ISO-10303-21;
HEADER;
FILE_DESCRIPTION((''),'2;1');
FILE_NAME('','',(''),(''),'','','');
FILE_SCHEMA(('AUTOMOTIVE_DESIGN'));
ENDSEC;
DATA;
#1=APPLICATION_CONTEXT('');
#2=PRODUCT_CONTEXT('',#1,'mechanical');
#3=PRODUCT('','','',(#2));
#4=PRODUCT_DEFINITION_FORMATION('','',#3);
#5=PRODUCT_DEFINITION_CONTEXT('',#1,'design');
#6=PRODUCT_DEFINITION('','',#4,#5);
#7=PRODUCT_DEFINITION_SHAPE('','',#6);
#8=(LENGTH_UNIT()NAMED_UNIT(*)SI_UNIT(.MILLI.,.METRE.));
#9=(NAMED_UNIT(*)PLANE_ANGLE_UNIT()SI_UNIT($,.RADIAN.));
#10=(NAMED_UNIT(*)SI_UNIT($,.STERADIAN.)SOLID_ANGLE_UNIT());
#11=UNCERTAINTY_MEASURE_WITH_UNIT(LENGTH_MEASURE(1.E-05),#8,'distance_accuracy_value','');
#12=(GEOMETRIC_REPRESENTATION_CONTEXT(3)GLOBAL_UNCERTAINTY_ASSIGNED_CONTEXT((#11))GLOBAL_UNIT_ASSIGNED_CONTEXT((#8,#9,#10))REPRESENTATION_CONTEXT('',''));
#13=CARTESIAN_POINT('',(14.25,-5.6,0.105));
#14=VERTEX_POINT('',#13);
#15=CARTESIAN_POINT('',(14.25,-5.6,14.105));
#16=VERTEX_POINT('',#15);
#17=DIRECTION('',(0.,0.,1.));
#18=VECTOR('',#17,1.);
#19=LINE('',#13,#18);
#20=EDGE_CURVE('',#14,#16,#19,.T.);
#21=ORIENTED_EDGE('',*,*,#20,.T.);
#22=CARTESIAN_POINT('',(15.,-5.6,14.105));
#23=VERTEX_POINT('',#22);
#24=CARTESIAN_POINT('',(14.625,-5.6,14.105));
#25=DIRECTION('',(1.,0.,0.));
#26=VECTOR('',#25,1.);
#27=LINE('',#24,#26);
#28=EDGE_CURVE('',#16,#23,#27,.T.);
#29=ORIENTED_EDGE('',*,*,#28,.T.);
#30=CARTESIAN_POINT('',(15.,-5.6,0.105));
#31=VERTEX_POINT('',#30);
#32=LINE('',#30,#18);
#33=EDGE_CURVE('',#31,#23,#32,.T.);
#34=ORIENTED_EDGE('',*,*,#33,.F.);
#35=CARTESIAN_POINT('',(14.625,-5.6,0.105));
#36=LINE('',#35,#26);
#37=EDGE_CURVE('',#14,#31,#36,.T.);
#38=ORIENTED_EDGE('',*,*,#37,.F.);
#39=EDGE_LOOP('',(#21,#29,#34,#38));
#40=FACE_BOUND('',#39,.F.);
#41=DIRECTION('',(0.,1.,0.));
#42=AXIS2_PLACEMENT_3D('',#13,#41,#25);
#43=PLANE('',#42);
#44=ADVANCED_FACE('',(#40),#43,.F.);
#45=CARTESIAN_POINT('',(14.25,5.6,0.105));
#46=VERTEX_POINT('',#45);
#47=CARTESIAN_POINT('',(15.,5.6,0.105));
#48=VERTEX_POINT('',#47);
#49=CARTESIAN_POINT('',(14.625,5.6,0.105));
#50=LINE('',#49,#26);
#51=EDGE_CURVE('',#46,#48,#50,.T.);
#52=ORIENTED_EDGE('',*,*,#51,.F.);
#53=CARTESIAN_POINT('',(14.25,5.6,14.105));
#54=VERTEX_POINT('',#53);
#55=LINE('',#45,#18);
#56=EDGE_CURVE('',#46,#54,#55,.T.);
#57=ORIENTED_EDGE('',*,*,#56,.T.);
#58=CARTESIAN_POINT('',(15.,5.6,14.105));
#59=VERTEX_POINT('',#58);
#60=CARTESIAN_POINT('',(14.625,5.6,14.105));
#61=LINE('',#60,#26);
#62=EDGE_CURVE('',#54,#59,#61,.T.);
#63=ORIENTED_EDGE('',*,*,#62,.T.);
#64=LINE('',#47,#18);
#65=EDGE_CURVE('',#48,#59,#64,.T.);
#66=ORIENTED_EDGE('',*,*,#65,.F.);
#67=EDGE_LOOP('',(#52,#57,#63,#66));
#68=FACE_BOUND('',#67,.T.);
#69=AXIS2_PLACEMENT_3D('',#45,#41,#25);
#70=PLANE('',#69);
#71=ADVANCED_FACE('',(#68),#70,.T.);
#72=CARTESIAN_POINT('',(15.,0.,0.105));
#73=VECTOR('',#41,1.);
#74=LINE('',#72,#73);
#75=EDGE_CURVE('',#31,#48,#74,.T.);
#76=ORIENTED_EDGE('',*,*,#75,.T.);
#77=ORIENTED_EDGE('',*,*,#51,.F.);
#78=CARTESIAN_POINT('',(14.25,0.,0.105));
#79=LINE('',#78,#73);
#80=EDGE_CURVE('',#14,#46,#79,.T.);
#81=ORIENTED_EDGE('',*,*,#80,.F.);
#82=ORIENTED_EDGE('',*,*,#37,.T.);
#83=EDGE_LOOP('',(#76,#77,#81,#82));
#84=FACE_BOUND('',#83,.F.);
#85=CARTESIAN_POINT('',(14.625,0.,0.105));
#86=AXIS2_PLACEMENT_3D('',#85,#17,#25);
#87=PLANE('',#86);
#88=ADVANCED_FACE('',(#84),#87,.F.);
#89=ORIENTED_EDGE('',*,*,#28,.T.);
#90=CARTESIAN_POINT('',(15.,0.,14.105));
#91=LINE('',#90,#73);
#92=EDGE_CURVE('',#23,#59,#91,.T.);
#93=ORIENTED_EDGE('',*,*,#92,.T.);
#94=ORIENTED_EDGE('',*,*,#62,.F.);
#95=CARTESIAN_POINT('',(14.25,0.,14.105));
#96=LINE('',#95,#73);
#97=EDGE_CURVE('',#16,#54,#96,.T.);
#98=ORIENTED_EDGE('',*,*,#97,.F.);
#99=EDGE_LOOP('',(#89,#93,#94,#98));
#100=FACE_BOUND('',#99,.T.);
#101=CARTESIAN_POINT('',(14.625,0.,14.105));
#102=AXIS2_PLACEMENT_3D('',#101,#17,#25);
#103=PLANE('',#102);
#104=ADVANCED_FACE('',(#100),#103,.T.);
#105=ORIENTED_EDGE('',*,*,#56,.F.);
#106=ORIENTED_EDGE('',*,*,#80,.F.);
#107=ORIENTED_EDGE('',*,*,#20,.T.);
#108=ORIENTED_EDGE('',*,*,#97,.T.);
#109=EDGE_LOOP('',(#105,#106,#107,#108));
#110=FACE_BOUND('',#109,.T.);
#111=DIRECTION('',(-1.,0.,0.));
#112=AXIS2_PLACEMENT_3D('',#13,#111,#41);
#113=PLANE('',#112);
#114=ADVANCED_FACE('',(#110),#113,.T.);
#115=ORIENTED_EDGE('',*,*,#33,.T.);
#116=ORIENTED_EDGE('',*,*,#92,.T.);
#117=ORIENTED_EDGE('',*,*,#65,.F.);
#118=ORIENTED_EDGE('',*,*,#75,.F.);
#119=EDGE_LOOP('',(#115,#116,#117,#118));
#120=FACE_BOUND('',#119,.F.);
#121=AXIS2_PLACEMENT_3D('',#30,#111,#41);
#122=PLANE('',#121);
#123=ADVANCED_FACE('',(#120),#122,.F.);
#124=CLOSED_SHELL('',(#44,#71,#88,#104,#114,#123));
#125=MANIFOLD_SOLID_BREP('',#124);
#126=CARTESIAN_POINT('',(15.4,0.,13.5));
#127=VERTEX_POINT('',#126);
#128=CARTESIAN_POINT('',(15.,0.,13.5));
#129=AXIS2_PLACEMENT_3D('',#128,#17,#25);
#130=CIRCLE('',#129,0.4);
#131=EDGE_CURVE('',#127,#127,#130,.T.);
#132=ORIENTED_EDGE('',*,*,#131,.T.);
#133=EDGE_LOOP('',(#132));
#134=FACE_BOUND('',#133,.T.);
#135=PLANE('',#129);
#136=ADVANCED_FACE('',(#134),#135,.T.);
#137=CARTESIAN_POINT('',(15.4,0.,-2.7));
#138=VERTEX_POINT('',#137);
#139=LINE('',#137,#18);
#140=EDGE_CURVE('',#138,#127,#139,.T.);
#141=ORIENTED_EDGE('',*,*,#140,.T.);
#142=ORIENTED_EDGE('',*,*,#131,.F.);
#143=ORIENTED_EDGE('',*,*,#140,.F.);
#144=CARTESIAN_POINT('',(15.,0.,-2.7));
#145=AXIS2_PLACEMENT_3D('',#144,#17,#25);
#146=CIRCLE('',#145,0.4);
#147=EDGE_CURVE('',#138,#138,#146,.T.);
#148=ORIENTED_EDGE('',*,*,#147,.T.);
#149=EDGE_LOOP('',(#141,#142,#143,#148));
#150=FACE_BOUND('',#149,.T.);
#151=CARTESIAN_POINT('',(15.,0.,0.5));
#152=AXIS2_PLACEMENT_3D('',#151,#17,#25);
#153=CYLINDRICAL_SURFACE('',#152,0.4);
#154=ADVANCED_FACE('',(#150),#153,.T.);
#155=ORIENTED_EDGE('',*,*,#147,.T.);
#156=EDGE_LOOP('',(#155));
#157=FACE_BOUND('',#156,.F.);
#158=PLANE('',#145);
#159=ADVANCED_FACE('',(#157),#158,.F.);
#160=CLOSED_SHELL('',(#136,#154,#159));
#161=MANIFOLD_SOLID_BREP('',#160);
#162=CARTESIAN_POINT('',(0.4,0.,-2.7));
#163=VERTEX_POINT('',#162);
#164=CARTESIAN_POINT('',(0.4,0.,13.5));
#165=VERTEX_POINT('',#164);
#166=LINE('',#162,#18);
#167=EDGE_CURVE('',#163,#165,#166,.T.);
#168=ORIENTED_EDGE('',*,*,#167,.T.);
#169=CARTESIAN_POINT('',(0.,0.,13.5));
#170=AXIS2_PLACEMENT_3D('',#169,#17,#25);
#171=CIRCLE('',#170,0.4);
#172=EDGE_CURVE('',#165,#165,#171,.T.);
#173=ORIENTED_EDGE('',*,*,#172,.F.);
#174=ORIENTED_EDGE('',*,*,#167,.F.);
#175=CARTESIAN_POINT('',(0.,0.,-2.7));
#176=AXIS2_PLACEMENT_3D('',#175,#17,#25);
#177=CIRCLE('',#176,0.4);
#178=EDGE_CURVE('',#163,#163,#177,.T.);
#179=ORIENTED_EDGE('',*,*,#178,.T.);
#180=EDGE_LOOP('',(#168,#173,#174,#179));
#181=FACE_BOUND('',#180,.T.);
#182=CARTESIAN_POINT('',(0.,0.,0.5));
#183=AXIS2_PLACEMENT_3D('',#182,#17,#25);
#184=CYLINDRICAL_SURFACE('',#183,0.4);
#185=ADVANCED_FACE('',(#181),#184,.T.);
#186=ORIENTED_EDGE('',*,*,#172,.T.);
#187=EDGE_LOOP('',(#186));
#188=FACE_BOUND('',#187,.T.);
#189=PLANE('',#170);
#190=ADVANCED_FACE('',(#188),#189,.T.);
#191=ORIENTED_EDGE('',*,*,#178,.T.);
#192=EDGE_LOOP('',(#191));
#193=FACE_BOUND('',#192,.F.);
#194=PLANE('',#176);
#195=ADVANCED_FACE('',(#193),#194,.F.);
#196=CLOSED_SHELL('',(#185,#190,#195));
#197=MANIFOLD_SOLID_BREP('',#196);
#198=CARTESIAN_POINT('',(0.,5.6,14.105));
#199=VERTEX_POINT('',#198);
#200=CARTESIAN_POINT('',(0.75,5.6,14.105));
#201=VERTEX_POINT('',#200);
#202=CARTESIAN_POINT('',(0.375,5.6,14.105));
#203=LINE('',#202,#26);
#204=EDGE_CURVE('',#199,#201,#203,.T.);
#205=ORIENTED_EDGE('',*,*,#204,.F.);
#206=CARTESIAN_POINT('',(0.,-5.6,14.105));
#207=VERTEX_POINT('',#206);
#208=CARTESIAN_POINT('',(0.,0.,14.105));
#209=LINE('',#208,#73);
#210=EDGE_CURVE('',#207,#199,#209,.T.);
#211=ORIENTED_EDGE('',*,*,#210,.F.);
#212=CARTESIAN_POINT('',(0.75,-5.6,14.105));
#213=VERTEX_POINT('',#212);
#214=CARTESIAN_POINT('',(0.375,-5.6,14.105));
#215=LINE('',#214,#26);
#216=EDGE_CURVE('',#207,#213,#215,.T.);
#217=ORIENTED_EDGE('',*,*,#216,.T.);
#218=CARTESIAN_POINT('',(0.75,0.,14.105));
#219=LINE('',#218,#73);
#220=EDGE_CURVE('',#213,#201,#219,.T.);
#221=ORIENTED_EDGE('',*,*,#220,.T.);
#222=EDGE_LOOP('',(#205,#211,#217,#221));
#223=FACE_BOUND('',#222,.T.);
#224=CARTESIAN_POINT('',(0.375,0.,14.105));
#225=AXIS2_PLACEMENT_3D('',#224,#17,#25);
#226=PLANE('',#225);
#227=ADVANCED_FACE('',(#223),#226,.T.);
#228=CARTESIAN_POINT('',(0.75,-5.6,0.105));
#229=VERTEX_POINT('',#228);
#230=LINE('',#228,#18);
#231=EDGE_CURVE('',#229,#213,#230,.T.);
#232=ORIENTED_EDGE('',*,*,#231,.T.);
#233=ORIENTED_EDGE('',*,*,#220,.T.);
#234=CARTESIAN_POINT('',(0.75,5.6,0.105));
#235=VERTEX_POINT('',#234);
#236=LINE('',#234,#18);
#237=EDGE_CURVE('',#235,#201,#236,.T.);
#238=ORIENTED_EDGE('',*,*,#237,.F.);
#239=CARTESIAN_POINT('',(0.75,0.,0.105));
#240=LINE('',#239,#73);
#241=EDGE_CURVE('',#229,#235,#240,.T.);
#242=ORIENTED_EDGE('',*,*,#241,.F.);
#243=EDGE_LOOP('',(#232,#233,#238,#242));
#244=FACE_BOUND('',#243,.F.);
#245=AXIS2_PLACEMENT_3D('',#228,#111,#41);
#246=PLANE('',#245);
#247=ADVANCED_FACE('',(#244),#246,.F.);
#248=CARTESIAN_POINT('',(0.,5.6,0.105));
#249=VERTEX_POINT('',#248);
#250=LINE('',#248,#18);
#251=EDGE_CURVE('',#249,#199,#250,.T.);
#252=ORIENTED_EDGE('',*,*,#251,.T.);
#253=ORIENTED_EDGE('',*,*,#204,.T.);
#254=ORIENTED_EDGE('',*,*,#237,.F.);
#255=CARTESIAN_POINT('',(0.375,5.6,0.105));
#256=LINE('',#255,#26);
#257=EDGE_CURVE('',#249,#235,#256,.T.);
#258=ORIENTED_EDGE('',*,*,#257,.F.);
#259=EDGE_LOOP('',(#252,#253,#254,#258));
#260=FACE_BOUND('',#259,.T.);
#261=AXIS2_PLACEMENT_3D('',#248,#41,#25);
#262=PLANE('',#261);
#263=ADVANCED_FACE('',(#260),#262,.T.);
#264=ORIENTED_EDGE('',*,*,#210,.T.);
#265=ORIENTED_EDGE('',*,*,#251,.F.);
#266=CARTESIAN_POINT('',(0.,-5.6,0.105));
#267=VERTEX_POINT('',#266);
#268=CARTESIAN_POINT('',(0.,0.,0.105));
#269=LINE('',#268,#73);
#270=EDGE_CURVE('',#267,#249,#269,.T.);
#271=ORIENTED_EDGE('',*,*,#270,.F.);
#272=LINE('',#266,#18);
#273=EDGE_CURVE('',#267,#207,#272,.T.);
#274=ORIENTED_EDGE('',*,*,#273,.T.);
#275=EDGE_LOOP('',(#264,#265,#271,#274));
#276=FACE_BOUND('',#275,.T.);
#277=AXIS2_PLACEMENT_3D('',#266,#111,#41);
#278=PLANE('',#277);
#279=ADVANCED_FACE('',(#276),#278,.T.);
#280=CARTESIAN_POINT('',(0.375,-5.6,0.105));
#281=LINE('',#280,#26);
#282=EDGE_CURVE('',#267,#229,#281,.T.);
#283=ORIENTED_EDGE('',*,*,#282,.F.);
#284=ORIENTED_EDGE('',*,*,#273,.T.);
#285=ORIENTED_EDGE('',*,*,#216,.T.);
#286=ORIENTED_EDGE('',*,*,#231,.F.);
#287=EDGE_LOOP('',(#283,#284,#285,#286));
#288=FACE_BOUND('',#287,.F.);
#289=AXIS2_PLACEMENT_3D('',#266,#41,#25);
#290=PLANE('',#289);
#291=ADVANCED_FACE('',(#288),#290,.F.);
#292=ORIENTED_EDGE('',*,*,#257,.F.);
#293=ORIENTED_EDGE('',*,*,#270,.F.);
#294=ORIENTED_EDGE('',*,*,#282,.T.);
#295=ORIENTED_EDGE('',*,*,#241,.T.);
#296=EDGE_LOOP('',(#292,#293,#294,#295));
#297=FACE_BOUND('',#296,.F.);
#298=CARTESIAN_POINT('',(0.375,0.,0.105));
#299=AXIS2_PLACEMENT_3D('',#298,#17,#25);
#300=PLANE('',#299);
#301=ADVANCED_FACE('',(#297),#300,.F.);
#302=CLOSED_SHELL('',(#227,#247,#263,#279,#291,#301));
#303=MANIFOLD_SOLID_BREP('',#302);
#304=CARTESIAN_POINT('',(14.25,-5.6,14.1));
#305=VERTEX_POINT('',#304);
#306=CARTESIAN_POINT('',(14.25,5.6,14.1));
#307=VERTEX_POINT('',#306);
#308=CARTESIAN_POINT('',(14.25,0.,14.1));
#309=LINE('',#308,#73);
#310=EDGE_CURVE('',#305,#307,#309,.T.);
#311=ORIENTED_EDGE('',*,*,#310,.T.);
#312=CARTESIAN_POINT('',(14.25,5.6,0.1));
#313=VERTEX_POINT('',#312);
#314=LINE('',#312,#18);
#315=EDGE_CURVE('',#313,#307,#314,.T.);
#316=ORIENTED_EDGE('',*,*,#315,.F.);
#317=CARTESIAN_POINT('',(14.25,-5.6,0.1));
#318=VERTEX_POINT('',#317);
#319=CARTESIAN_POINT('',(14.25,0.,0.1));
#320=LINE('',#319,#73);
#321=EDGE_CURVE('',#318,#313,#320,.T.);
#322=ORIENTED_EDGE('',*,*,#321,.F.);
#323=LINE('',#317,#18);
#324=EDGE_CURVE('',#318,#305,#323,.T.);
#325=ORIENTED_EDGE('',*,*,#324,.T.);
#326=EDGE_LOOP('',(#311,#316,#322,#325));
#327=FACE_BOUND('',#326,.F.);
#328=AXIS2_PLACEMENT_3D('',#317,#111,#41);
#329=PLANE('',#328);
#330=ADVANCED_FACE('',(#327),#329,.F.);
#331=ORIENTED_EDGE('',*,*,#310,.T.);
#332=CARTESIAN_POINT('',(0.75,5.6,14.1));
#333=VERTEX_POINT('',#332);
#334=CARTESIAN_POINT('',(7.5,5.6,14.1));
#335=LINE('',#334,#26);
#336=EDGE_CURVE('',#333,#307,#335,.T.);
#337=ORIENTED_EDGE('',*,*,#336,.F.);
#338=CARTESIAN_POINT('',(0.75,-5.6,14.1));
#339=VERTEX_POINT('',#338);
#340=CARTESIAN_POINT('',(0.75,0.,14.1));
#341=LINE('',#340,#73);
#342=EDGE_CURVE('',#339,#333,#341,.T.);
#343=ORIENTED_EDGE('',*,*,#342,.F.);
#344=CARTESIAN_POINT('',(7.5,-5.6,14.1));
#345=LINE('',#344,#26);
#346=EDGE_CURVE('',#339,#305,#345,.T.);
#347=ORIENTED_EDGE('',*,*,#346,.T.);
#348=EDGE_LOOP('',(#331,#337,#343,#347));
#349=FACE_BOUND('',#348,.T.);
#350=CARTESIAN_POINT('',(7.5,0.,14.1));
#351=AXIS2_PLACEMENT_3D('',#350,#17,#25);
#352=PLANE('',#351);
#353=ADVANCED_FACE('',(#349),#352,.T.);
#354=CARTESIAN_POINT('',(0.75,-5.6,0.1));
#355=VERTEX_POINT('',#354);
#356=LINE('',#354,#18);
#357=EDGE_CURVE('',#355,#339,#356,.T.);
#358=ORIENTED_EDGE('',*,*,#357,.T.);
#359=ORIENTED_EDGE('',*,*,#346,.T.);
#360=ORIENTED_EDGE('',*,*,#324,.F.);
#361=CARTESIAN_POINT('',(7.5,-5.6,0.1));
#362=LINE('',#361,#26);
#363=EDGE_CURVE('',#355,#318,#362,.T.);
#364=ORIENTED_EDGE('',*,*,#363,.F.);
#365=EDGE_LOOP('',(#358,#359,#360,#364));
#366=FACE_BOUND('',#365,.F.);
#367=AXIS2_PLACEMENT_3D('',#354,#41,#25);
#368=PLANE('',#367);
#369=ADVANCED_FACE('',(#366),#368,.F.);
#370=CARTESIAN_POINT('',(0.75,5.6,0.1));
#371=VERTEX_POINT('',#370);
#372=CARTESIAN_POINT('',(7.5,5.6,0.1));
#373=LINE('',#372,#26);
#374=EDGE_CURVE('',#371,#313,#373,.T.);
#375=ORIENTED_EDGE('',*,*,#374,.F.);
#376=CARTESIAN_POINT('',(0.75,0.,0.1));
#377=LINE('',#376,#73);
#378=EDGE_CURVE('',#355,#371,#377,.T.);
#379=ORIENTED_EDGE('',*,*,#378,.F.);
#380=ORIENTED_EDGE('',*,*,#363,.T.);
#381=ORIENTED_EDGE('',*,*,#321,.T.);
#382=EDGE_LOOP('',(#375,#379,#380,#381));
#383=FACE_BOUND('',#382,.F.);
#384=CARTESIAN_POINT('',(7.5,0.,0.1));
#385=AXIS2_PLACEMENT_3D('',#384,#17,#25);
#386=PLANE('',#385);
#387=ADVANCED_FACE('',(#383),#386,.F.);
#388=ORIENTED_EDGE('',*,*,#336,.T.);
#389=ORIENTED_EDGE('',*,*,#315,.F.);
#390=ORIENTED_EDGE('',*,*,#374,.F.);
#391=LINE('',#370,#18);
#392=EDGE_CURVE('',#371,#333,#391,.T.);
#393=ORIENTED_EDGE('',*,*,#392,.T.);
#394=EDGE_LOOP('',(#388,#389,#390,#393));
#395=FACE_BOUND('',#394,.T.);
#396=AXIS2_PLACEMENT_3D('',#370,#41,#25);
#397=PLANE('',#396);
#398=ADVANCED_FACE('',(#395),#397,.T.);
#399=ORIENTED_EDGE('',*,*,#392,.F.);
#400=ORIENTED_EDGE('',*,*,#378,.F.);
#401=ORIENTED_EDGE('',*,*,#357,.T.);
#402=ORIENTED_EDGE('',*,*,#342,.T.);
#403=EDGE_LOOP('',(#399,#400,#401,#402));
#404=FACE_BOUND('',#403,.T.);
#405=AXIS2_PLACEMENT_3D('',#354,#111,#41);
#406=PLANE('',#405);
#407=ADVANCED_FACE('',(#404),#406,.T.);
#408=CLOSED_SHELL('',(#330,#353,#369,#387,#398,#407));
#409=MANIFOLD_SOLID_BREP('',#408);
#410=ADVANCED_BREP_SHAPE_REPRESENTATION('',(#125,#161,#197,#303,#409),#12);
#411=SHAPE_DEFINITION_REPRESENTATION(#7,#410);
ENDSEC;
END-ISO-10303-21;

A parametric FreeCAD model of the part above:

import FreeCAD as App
import Part
import Sketcher
Q = App.Units.Quantity

doc = App.newDocument("Part")
body = doc.addObject("PartDesign::Body", "Body")

sketch1 = body.newObject("Sketcher::SketchObject", "Sketch")
sketch1.AttachmentSupport = (doc.getObject("XY_Plane"), [""])
sketch1.MapMode = "FlatFace"
sketch1.AttachmentOffset = App.Placement(App.Vector(0, 0, 0.1), App.Rotation())
sketch1.addGeometry(Part.LineSegment(App.Vector(1, 6, 0), App.Vector(1, -6, 0)), False)
sketch1.addGeometry(Part.LineSegment(App.Vector(1, -6, 0), App.Vector(14, -6, 0)), False)
sketch1.addGeometry(Part.LineSegment(App.Vector(14, -6, 0), App.Vector(14, 6, 0)), False)
sketch1.addGeometry(Part.LineSegment(App.Vector(14, 6, 0), App.Vector(1, 6, 0)), False)
sketch1.addConstraint(Sketcher.Constraint("Coincident", 0, 2, 1, 1))
sketch1.addConstraint(Sketcher.Constraint("Coincident", 1, 2, 2, 1))
sketch1.addConstraint(Sketcher.Constraint("Coincident", 2, 2, 3, 1))
sketch1.addConstraint(Sketcher.Constraint("Coincident", 3, 2, 0, 1))
sketch1.addConstraint(Sketcher.Constraint("Vertical", 0))
sketch1.addConstraint(Sketcher.Constraint("Horizontal", 1))
sketch1.addConstraint(Sketcher.Constraint("Vertical", 2))
sketch1.addConstraint(Sketcher.Constraint("Horizontal", 3))
sketch1.addConstraint(Sketcher.Constraint("DistanceX", 1, 1, 1, 2, Q("13.5 mm")))
sketch1.addConstraint(Sketcher.Constraint("DistanceY", 0, 2, 0, 1, Q("11.2 mm")))
sketch1.addConstraint(Sketcher.Constraint("DistanceY", 0, 2, -1, 1, Q("5.6 mm")))
sketch1.addConstraint(Sketcher.Constraint("DistanceX", -1, 1, 0, 2, Q("0.75 mm")))
pad1 = body.newObject("PartDesign::Pad", "Pad")
pad1.Profile = sketch1
pad1.Length = 14
body2 = doc.addObject("PartDesign::Body", "Body001")
body2.AllowCompound = True

sketch2 = body2.newObject("Sketcher::SketchObject", "Sketch001")
sketch2.AttachmentSupport = (doc.getObject("XY_Plane001"), [""])
sketch2.MapMode = "FlatFace"
sketch2.AttachmentOffset = App.Placement(App.Vector(0, 0, 0.5), App.Rotation())
sketch2.addGeometry(Part.Circle(App.Vector(0, 0, 0), App.Vector(0, 0, 1), 0.4), False)
sketch2.addGeometry(Part.Circle(App.Vector(15, 0, 0), App.Vector(0, 0, 1), 0.4), False)
sketch2.addConstraint(Sketcher.Constraint("Coincident", 0, 3, -1, 1))
sketch2.addConstraint(Sketcher.Constraint("Equal", 0, 1))
sketch2.addConstraint(Sketcher.Constraint("PointOnObject", 1, 3, -1))
sketch2.addConstraint(Sketcher.Constraint("Diameter", 0, Q("0.8 mm")))
sketch2.addConstraint(Sketcher.Constraint("DistanceX", -1, 1, 1, 3, Q("15 mm")))
pad2 = body2.newObject("PartDesign::Pad", "Pad001")
pad2.Profile = sketch2
pad2.Type = "TwoLengths"
pad2.Length = 13
pad2.Length2 = 3.2
body3 = doc.addObject("PartDesign::Body", "Body002")
body3.AllowCompound = True

sketch3 = body3.newObject("Sketcher::SketchObject", "Sketch002")
sketch3.AttachmentSupport = (doc.getObject("XY_Plane002"), [""])
sketch3.MapMode = "FlatFace"
sketch3.AttachmentOffset = App.Placement(App.Vector(0, 0, 0.105), App.Rotation())
sketch3.addGeometry(Part.LineSegment(App.Vector(0, 5.6, 0), App.Vector(0, -5.6, 0)), False)
sketch3.addGeometry(Part.LineSegment(App.Vector(0, -5.6, 0), App.Vector(0.8, -5.6, 0)), False)
sketch3.addGeometry(Part.LineSegment(App.Vector(0.8, -5.6, 0), App.Vector(0.8, 5.6, 0)), False)
sketch3.addGeometry(Part.LineSegment(App.Vector(0.8, 5.6, 0), App.Vector(0, 5.6, 0)), False)
sketch3.addGeometry(Part.LineSegment(App.Vector(14.2, 5.6, 0), App.Vector(14.2, -5.6, 0)), False)
sketch3.addGeometry(Part.LineSegment(App.Vector(14.2, -5.6, 0), App.Vector(15, -5.6, 0)), False)
sketch3.addGeometry(Part.LineSegment(App.Vector(15, -5.6, 0), App.Vector(15, 5.6, 0)), False)
sketch3.addGeometry(Part.LineSegment(App.Vector(15, 5.6, 0), App.Vector(14.2, 5.6, 0)), False)
sketch3.addConstraint(Sketcher.Constraint("Coincident", 0, 2, 1, 1))
sketch3.addConstraint(Sketcher.Constraint("Coincident", 1, 2, 2, 1))
sketch3.addConstraint(Sketcher.Constraint("Coincident", 2, 2, 3, 1))
sketch3.addConstraint(Sketcher.Constraint("Coincident", 3, 2, 0, 1))
sketch3.addConstraint(Sketcher.Constraint("Coincident", 4, 2, 5, 1))
sketch3.addConstraint(Sketcher.Constraint("Coincident", 5, 2, 6, 1))
sketch3.addConstraint(Sketcher.Constraint("Coincident", 6, 2, 7, 1))
sketch3.addConstraint(Sketcher.Constraint("Coincident", 7, 2, 4, 1))
sketch3.addConstraint(Sketcher.Constraint("Vertical", 0))
sketch3.addConstraint(Sketcher.Constraint("Horizontal", 1))
sketch3.addConstraint(Sketcher.Constraint("Vertical", 2))
sketch3.addConstraint(Sketcher.Constraint("Horizontal", 3))
sketch3.addConstraint(Sketcher.Constraint("Vertical", 4))
sketch3.addConstraint(Sketcher.Constraint("Horizontal", 5))
sketch3.addConstraint(Sketcher.Constraint("Vertical", 6))
sketch3.addConstraint(Sketcher.Constraint("Horizontal", 7))
sketch3.addConstraint(Sketcher.Constraint("Symmetric", 0, 2, 3, 2, -1, 1))
sketch3.addConstraint(Sketcher.Constraint("Horizontal", 1, 2, 4, 2))
sketch3.addConstraint(Sketcher.Constraint("Horizontal", 3, 2, 6, 2))
sketch3.addConstraint(Sketcher.Constraint("Equal", 3, 5))
sketch3.addConstraint(Sketcher.Constraint("DistanceY", 0, 2, 0, 1, Q("11.2 mm")))
sketch3.addConstraint(Sketcher.Constraint("DistanceX", -1, 1, 5, 2, Q("15 mm")))
sketch3.addConstraint(Sketcher.Constraint("DistanceX", 1, 1, 1, 2, Q("0.75 mm")))
pad3 = body3.newObject("PartDesign::Pad", "Pad002")
pad3.Profile = sketch3
pad3.Length = 14

doc.recompute()
